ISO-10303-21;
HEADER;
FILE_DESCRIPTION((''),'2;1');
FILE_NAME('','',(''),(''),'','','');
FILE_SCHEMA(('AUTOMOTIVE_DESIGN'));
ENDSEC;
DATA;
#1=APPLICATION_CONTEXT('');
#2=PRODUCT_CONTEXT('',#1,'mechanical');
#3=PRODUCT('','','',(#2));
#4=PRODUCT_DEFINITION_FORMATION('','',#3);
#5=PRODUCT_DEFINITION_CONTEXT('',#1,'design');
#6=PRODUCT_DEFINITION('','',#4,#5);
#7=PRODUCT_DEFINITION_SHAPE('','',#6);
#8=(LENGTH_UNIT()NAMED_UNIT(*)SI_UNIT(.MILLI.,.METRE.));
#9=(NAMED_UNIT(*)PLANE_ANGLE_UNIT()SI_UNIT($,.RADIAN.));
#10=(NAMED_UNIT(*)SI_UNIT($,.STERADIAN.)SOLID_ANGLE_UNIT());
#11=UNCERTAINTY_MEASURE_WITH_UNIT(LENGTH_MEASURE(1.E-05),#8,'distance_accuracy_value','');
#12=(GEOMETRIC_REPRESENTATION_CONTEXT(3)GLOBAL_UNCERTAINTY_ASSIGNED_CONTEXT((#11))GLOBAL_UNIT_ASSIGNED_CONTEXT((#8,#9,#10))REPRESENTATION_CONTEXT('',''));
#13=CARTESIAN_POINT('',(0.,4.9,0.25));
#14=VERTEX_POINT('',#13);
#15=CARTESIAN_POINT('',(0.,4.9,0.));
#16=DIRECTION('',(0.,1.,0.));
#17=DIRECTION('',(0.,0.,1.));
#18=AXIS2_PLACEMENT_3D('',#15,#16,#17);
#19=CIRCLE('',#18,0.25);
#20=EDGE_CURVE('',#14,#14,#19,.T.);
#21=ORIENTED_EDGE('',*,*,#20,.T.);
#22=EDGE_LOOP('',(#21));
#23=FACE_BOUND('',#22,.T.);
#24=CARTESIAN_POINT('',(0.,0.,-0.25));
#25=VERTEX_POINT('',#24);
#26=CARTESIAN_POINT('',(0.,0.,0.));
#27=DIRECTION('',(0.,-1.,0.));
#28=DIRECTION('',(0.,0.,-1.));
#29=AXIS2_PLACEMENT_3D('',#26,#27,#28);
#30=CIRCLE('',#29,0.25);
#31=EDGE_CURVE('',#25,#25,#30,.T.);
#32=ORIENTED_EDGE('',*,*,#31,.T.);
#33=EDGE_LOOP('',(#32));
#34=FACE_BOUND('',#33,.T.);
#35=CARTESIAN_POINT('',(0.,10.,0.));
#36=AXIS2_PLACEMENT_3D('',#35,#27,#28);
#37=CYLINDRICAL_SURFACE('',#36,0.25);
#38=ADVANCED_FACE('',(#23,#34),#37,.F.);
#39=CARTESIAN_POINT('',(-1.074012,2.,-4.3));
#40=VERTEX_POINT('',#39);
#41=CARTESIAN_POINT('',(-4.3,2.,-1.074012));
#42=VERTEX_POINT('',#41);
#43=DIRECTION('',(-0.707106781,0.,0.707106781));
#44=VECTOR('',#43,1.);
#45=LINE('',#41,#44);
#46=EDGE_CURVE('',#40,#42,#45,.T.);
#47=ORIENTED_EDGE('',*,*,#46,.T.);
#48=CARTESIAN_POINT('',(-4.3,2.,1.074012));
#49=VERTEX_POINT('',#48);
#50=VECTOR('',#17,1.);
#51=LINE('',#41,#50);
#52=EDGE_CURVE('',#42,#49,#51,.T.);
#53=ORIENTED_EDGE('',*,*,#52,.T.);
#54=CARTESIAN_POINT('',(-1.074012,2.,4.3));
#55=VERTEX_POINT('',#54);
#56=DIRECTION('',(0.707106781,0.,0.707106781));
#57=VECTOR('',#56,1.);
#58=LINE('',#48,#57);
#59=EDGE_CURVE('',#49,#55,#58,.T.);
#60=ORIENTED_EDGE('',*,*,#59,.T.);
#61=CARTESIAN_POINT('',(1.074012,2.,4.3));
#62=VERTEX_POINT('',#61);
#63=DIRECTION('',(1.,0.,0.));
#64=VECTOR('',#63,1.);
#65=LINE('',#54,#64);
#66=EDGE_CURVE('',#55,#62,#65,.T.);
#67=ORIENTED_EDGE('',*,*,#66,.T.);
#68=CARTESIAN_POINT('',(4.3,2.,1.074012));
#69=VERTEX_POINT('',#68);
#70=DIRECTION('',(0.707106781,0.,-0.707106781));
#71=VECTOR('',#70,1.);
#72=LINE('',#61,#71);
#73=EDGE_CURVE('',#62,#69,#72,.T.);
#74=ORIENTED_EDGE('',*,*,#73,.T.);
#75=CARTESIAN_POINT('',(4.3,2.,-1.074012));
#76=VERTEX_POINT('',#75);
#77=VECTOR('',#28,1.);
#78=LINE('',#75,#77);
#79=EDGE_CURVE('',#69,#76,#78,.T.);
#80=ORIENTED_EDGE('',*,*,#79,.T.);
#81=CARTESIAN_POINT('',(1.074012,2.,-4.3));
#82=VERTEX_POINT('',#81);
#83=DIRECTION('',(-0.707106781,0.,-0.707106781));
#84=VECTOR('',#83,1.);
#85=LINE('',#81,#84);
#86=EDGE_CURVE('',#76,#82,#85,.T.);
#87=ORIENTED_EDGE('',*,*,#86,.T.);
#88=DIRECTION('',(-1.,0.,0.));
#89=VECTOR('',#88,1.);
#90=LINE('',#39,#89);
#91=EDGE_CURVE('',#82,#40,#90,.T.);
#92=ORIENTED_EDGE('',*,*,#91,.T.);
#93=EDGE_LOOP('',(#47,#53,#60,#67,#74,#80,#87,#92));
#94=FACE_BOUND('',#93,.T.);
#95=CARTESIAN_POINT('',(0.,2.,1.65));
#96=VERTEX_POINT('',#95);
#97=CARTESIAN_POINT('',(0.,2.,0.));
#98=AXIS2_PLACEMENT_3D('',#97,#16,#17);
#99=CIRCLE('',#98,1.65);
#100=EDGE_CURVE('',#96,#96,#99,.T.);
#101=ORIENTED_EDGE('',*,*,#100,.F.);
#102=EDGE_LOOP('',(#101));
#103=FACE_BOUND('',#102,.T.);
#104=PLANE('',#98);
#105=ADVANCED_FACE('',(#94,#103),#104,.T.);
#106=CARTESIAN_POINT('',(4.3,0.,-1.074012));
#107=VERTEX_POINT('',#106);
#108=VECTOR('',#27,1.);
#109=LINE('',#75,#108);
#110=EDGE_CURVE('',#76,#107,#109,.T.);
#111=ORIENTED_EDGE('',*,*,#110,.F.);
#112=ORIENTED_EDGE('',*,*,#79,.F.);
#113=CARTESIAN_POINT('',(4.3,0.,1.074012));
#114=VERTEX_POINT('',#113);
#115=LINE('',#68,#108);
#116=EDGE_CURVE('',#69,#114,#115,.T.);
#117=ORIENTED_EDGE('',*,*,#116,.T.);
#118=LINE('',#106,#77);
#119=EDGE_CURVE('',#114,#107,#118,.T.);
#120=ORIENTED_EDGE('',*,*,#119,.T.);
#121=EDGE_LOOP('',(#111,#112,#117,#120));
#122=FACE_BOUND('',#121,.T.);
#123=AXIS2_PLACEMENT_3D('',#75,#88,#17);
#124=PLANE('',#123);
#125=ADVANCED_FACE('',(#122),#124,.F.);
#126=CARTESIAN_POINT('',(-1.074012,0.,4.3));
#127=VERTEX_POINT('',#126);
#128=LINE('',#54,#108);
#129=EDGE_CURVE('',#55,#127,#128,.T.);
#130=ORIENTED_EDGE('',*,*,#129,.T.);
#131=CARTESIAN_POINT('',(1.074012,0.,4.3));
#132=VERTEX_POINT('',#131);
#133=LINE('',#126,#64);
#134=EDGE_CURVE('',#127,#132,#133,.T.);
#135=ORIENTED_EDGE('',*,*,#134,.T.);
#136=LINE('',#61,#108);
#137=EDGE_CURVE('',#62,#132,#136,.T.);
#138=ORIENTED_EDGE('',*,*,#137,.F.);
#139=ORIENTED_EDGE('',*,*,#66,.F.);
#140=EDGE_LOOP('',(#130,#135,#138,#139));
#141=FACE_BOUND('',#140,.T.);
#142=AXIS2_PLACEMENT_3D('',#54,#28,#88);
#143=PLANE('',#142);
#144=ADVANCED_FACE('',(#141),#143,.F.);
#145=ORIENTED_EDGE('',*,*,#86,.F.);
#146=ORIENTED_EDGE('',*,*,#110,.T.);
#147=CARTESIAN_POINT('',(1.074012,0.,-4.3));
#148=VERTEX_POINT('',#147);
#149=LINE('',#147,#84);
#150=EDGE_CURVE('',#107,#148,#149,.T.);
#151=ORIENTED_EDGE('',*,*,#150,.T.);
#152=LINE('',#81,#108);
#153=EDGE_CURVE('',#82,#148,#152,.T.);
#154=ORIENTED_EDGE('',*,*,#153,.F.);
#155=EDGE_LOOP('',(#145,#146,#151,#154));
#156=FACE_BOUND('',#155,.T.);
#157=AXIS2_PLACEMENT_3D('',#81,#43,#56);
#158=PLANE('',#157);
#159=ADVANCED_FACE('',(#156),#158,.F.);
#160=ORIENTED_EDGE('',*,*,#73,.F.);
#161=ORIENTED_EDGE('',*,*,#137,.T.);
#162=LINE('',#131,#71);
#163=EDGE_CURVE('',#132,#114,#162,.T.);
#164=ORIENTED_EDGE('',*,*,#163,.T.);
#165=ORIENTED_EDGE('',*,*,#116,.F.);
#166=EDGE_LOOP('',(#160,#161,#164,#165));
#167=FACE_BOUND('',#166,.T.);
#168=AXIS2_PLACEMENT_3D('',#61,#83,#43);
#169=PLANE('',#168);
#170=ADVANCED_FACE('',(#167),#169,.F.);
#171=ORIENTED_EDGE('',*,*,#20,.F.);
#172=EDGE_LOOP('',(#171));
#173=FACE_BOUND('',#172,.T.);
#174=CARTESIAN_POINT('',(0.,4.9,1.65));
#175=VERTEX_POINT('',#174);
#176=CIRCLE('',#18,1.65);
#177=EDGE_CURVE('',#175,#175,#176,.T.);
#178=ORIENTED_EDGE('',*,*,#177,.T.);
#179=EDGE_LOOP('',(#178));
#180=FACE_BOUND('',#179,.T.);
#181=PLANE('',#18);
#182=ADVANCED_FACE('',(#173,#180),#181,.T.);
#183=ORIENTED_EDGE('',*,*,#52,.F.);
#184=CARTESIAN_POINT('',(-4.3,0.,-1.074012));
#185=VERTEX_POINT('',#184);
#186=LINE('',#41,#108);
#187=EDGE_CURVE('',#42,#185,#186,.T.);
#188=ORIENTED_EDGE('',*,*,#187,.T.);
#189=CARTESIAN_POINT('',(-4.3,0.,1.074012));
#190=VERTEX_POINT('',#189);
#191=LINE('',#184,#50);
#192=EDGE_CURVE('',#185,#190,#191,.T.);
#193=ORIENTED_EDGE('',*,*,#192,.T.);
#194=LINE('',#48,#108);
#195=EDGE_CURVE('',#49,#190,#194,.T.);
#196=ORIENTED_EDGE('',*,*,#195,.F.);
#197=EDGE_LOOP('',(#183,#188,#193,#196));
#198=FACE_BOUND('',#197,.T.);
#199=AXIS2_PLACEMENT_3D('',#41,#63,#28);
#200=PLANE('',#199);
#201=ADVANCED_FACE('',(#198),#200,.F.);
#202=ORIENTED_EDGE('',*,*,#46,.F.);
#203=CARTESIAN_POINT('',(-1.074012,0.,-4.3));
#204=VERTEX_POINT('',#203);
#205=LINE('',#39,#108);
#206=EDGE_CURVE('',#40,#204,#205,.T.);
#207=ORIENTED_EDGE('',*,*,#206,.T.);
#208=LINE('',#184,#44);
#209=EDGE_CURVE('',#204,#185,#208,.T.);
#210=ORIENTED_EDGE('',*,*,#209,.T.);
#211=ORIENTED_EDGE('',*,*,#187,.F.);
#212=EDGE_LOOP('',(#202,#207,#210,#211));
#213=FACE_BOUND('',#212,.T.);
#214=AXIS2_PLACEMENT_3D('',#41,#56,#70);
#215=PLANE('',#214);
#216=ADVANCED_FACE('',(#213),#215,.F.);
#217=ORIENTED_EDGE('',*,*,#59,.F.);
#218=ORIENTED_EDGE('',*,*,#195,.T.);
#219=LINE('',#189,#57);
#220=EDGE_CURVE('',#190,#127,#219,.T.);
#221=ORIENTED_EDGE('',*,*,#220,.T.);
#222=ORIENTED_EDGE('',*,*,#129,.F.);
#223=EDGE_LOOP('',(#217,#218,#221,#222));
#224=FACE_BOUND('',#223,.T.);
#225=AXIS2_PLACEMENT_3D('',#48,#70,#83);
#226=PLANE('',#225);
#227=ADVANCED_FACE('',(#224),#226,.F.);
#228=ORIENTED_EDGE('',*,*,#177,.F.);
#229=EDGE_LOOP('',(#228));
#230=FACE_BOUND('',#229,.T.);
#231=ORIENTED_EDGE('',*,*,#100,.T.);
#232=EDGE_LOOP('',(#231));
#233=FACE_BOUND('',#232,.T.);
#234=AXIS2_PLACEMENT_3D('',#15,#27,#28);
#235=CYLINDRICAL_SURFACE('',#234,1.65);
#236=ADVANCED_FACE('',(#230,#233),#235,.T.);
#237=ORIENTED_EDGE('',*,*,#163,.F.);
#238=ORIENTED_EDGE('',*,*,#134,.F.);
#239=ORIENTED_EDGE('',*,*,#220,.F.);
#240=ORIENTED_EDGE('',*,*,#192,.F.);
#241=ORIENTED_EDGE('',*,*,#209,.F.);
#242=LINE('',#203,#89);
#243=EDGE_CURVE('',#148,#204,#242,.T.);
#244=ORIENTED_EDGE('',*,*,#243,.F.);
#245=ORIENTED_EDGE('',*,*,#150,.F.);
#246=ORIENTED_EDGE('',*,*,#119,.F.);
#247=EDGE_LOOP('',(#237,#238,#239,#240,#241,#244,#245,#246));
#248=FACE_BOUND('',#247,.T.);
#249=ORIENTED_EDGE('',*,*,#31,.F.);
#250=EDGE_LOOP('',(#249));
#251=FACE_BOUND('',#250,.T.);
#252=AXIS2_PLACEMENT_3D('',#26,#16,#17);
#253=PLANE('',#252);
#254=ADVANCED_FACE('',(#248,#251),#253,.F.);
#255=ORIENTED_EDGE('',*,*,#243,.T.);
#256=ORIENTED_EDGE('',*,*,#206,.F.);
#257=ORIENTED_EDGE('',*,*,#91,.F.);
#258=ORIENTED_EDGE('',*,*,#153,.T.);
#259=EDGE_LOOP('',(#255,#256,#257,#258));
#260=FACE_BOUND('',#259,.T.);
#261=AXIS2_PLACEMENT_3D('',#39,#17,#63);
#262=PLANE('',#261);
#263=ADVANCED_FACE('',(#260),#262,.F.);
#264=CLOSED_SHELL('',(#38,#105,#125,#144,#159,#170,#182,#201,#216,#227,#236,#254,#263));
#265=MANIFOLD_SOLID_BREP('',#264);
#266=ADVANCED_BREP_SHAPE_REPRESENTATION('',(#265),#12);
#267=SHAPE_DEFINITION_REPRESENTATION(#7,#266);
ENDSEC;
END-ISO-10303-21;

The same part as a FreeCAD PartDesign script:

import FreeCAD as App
import Part
import Sketcher
Q = App.Units.Quantity


def add_polygon(sketch, points):
    """Adds a closed chain of lines whose ends are joined by coincident constraints."""
    first, n = sketch.GeometryCount, len(points)
    for a, b in zip(points, points[1:] + points[:1]):
        sketch.addGeometry(Part.LineSegment(App.Vector(*a, 0), App.Vector(*b, 0)), False)
    for i in range(n):
        sketch.addConstraint(Sketcher.Constraint("Coincident", first + i, 2, first + (i + 1) % n, 1))

doc = App.newDocument("Part")
body = doc.addObject("PartDesign::Body", "Body")

sketch1 = body.newObject("Sketcher::SketchObject", "Sketch")
sketch1.AttachmentSupport = (doc.getObject("XZ_Plane"), [""])
sketch1.MapMode = "FlatFace"
add_polygon(sketch1, [(-4.3, 1.1), (-1.1, 4.3), (1.1, 4.3), (4.3, 1.1), (4.3, -1.1), (1.1, -4.3), (-1.1, -4.3), (-4.3, -1.1)])
sketch1.addConstraint([
    Sketcher.Constraint("Horizontal", 1),
    Sketcher.Constraint("Vertical", 3),
    Sketcher.Constraint("Horizontal", 5),
    Sketcher.Constraint("Vertical", 7),
    Sketcher.Constraint("Symmetric", 0, 2, 4, 2, -1, 1),
    Sketcher.Constraint("Symmetric", 2, 2, 6, 2, -1, 1),
    Sketcher.Constraint("Perpendicular", 0, 2),
    Sketcher.Constraint("Perpendicular", 2, 4),
    Sketcher.Constraint("Perpendicular", 4, 6),
    Sketcher.Constraint("Horizontal", 3, 2, 6, 2),
    Sketcher.Constraint("Vertical", 1, 2, 4, 2),
    Sketcher.Constraint("Equal", 5, 3),
    Sketcher.Constraint("DistanceY", -1, 1, 0, 2, Q("4.3 mm")),
    Sketcher.Constraint("DistanceX", 1, 1, 1, 2, Q("2.148023 mm")),
])
pad1 = body.newObject("PartDesign::Pad", "Pad")
pad1.Profile = sketch1
pad1.Length = 2
pad1.Reversed = True

sketch2 = body.newObject("Sketcher::SketchObject", "Sketch001")
sketch2.AttachmentSupport = (doc.getObject("XZ_Plane"), [""])
sketch2.MapMode = "FlatFace"
sketch2.AttachmentOffset = App.Placement(App.Vector(0, 0, -2), App.Rotation())
sketch2.addGeometry(Part.Circle(App.Vector(0, 0, 0), App.Vector(0, 0, 1), 1.6), False)
sketch2.addConstraint([
    Sketcher.Constraint("Coincident", 0, 3, -1, 1),
    Sketcher.Constraint("Diameter", 0, Q("3.3 mm")),
])
pad2 = body.newObject("PartDesign::Pad", "Pad001")
pad2.Profile = sketch2
pad2.Length = 2.9
pad2.Reversed = True

sketch3 = body.newObject("Sketcher::SketchObject", "Sketch002")
sketch3.AttachmentSupport = (doc.getObject("XZ_Plane"), [""])
sketch3.MapMode = "FlatFace"
sketch3.addGeometry(Part.Circle(App.Vector(0, 0, 0), App.Vector(0, 0, 1), 0.25), False)
sketch3.addConstraint([
    Sketcher.Constraint("Coincident", 0, 3, -1, 1),
    Sketcher.Constraint("Diameter", 0, Q("0.5 mm")),
])
pocket1 = body.newObject("PartDesign::Pocket", "Pocket")
pocket1.Profile = sketch3
pocket1.Length = 10

doc.recompute()
